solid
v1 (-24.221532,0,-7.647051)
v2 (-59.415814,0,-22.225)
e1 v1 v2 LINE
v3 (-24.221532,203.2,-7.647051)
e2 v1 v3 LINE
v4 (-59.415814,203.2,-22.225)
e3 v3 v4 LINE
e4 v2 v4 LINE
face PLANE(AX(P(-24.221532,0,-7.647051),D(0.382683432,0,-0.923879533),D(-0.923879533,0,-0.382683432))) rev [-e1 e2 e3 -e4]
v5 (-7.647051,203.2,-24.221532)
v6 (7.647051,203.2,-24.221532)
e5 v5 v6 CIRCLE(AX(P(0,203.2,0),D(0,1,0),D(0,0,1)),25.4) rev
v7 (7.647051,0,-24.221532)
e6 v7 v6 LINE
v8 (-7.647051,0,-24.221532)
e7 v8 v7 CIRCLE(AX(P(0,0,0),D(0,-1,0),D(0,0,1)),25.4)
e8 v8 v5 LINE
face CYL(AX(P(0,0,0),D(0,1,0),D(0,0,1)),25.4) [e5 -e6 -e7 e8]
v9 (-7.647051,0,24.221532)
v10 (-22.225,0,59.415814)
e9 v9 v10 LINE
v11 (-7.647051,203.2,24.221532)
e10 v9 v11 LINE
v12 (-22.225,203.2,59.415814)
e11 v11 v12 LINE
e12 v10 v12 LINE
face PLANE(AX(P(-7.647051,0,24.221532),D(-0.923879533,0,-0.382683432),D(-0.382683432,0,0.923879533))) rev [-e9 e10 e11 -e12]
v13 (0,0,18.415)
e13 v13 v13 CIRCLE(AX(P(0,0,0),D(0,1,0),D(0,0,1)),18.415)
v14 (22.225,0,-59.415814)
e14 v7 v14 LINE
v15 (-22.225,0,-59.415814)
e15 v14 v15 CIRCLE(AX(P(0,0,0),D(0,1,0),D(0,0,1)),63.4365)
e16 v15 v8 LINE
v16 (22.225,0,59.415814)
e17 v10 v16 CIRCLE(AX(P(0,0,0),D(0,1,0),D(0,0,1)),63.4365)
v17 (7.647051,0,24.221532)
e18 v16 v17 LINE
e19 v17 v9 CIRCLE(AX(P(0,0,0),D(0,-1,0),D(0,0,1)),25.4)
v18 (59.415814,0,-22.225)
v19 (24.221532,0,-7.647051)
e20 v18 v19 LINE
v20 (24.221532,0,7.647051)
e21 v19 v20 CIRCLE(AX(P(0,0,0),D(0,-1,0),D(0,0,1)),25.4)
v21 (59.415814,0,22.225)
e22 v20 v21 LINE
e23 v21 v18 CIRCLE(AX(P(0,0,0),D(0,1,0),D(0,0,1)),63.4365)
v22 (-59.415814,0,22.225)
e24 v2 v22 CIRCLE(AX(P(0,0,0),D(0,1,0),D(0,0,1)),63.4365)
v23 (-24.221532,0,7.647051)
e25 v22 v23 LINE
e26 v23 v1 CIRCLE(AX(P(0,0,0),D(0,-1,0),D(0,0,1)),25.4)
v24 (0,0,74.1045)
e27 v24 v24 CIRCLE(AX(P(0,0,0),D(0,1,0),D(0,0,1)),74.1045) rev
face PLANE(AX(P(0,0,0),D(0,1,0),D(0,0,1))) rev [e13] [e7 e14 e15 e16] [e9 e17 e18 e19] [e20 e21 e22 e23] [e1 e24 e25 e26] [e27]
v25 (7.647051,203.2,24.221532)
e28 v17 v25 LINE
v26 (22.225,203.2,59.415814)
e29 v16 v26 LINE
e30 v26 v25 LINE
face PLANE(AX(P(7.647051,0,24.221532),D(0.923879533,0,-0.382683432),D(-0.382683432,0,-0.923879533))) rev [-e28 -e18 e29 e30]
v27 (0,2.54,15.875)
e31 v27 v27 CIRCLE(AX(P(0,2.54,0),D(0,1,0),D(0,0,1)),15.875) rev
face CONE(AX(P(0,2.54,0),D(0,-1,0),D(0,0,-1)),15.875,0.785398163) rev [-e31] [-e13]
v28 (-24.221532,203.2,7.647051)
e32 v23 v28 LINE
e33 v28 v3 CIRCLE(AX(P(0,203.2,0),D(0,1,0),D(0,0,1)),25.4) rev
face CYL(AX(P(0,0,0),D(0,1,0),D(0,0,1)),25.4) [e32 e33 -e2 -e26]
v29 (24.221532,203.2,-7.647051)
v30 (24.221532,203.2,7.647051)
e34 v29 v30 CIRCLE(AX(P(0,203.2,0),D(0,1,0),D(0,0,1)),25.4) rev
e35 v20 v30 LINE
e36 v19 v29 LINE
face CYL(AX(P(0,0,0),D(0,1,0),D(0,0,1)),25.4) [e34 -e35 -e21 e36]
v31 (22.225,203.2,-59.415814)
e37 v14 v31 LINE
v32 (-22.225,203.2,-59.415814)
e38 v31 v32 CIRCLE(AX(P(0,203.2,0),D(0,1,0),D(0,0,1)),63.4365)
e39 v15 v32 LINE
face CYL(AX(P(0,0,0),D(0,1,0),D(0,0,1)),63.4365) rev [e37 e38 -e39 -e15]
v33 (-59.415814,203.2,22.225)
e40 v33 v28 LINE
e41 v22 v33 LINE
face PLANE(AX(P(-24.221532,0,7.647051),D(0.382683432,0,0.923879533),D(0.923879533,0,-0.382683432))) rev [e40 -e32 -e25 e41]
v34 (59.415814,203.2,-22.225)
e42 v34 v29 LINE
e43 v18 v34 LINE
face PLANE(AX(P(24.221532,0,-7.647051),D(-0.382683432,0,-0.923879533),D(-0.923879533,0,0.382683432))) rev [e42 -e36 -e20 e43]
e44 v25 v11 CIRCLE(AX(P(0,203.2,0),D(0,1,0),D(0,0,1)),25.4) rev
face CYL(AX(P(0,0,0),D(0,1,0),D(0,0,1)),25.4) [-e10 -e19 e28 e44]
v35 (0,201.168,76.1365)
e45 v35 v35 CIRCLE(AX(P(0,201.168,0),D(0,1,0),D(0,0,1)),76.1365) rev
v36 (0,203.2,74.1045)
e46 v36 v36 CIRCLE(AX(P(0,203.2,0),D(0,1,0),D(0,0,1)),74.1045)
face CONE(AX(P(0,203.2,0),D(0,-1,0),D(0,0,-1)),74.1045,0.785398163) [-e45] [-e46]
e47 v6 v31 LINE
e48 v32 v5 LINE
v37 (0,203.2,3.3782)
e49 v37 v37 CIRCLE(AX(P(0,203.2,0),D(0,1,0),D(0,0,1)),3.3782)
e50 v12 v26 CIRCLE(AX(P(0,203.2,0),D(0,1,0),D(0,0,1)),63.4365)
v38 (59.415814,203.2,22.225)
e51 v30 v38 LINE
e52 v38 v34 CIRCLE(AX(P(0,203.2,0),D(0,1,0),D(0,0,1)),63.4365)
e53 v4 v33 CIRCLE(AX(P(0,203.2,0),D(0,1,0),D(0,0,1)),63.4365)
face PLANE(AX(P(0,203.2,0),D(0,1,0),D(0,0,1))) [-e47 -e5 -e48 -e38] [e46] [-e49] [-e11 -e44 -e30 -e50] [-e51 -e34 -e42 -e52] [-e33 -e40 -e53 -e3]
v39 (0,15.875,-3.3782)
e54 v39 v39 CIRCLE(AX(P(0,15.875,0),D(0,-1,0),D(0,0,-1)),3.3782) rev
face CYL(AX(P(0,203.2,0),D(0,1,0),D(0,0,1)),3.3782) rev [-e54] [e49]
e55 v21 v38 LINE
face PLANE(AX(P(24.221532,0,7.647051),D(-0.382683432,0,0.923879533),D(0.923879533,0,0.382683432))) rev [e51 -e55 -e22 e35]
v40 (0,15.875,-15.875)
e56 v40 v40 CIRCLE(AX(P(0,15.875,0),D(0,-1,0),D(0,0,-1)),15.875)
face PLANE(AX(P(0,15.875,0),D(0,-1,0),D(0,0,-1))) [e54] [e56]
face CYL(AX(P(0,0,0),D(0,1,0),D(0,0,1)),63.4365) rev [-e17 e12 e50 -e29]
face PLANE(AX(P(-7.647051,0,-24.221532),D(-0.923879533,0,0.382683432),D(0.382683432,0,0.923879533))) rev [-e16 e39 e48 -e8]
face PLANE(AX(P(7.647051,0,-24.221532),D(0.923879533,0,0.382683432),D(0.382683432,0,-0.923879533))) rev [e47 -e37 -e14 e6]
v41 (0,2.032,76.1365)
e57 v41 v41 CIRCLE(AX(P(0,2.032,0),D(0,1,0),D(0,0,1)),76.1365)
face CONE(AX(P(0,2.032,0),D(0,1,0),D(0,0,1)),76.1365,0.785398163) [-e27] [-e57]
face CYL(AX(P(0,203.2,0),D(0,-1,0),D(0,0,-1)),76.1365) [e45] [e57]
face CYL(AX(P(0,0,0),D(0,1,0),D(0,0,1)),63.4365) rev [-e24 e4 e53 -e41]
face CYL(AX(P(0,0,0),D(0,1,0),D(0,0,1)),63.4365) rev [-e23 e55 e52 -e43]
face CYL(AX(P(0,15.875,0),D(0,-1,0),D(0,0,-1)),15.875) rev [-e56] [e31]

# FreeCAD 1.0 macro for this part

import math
import FreeCAD as App
import Part
import Sketcher

V = App.Vector
Q = App.Units.Quantity


def edges_at(feature, points):
    """Names of the edges that pass closest to the given points."""
    edges = feature.Shape.Edges
    near = lambda p: min(range(len(edges)), key=lambda i: edges[i].distToShape(Part.Vertex(*p))[0])
    return sorted({f"Edge{near(p) + 1}" for p in points})

doc = App.newDocument("Part")
params = doc.addObject("Spreadsheet::Sheet", "Params")
for row, (alias, value) in enumerate([
    ("sketch1_diameter", "5.995 in"),
    ("pad1_length", "8 in"),
    ("chamfer_size", "0.08 in"),
    ("sketch2_radius", "1 in"),
    ("sketch3_diameter", "0.266 in"),
    ("hole_diameter", "0.266 in"),
    ("sketch4_diameter", "1.25 in"),
    ("pocket2_length", "0.625 in"),
    ("chamfer2_size", "0.1 in"),
], start=1):
    params.set(f"A{row}", alias)
    params.set(f"B{row}", "=" + value)
    params.setAlias(f"B{row}", alias)

body = doc.addObject("PartDesign::Body", "Body")

# Sketch on XZ plane
sketch1 = body.newObject("Sketcher::SketchObject", "Sketch")
sketch1.AttachmentSupport = (doc.getObject("XZ_Plane"), [""])
sketch1.MapMode = "FlatFace"
sketch1.addGeometry(Part.Circle(V(0, 0, 0), V(0, 0, 1), 76), False)
sketch1.addConstraint([
    Sketcher.Constraint("Coincident", 0, 3, -1, 1),
    Sketcher.Constraint("Diameter", 0, Q("5.995 in")),
])
sketch1.setExpression("Constraints[1]", "Params.sketch1_diameter")
pad1 = body.newObject("PartDesign::Pad", "Pad")
pad1.Profile = sketch1
pad1.setExpression("Length", "Params.pad1_length")
pad1.Reversed = True
doc.recompute()

chamfer = body.newObject("PartDesign::Chamfer", "Chamfer")
chamfer.Base = (pad1, edges_at(pad1, [(0, 0, -76.136), (0, 203.2, -76.136)]))
chamfer.setExpression("Size", "Params.chamfer_size")

# Sketch on XZ plane
sketch2 = body.newObject("Sketcher::SketchObject", "Sketch001")
sketch2.AttachmentSupport = (doc.getObject("XZ_Plane"), [""])
sketch2.MapMode = "FlatFace"
sketch2.AttachmentOffset = App.Placement(V(0, 0, -8 * 25.4), App.Rotation())
sketch2.addGeometry([
    Part.LineSegment(V(-22, -59, 0), V(-8, -24, 0)),  # 0
    Part.ArcOfCircle(Part.Circle(V(0, 0, 0), V(0, 0, 1), 25), math.radians(-108), math.radians(-72)),  # 1
    Part.LineSegment(V(8, -24, 0), V(22, -59, 0)),  # 2
    Part.ArcOfCircle(Part.Circle(V(0, 0, 0), V(0, 0, 1), 63), math.radians(-111), math.radians(-69)),  # 3
    Part.LineSegment(V(59, -22, 0), V(24, -8, 0)),  # 4
    Part.ArcOfCircle(Part.Circle(V(0, 0, 0), V(0, 0, 1), 25), math.radians(-18), math.radians(18)),  # 5
    Part.LineSegment(V(24, 8, 0), V(59, 22, 0)),  # 6
    Part.ArcOfCircle(Part.Circle(V(0, 0, 0), V(0, 0, 1), 63), math.radians(-21), math.radians(21)),  # 7
    Part.LineSegment(V(22, 59, 0), V(8, 24, 0)),  # 8
    Part.ArcOfCircle(Part.Circle(V(0, 0, 0), V(0, 0, 1), 25), math.radians(72), math.radians(108)),  # 9
    Part.LineSegment(V(-8, 24, 0), V(-22, 59, 0)),  # 10
    Part.ArcOfCircle(Part.Circle(V(0, 0, 0), V(0, 0, 1), 63), math.radians(69), math.radians(111)),  # 11
    Part.LineSegment(V(-59, 22, 0), V(-24, 8, 0)),  # 12
    Part.ArcOfCircle(Part.Circle(V(0, 0, 0), V(0, 0, 1), 25), math.radians(162), math.radians(198)),  # 13
    Part.LineSegment(V(-24, -8, 0), V(-59, -22, 0)),  # 14
    Part.ArcOfCircle(Part.Circle(V(0, 0, 0), V(0, 0, 1), 63), math.radians(159), math.radians(201)),  # 15
], False)
sketch2.addConstraint([
    Sketcher.Constraint("Coincident", 0, 2, 1, 1),
    Sketcher.Constraint("Coincident", 1, 2, 2, 1),
    Sketcher.Constraint("Coincident", 2, 2, 3, 2),
    Sketcher.Constraint("Coincident", 3, 1, 0, 1),
    Sketcher.Constraint("Coincident", 4, 2, 5, 1),
    Sketcher.Constraint("Coincident", 5, 2, 6, 1),
    Sketcher.Constraint("Coincident", 6, 2, 7, 2),
    Sketcher.Constraint("Coincident", 7, 1, 4, 1),
    Sketcher.Constraint("Coincident", 8, 2, 9, 1),
    Sketcher.Constraint("Coincident", 9, 2, 10, 1),
    Sketcher.Constraint("Coincident", 10, 2, 11, 2),
    Sketcher.Constraint("Coincident", 11, 1, 8, 1),
    Sketcher.Constraint("Coincident", 12, 2, 13, 1),
    Sketcher.Constraint("Coincident", 13, 2, 14, 1),
    Sketcher.Constraint("Coincident", 14, 2, 15, 2),
    Sketcher.Constraint("Coincident", 15, 1, 12, 1),
    Sketcher.Constraint("Coincident", 1, 3, -1, 1),
    Sketcher.Constraint("Coincident", 3, 3, -1, 1),
    Sketcher.Constraint("Coincident", 5, 3, -1, 1),
    Sketcher.Constraint("Coincident", 7, 3, -1, 1),
    Sketcher.Constraint("Coincident", 9, 3, -1, 1),
    Sketcher.Constraint("Coincident", 11, 3, -1, 1),
    Sketcher.Constraint("Coincident", 13, 3, -1, 1),
    Sketcher.Constraint("Coincident", 15, 3, -1, 1),
    Sketcher.Constraint("Equal", 1, 5),
    Sketcher.Constraint("Equal", 3, 7),
    Sketcher.Constraint("Equal", 5, 9),
    Sketcher.Constraint("Equal", 7, 11),
    Sketcher.Constraint("Equal", 9, 13),
    Sketcher.Constraint("Equal", 11, 15),
    Sketcher.Constraint("Perpendicular", 0, 4),
    Sketcher.Constraint("Perpendicular", 2, 6),
    Sketcher.Constraint("Perpendicular", 4, 8),
    Sketcher.Constraint("Perpendicular", 6, 10),
    Sketcher.Constraint("Perpendicular", 8, 12),
    Sketcher.Constraint("Perpendicular", 10, 14),
    Sketcher.Constraint("Horizontal", 0, 2, 1, 2),
    Sketcher.Constraint("Horizontal", 2, 2, 3, 1),
    Sketcher.Constraint("Horizontal", 8, 2, 9, 2),
    Sketcher.Constraint("Horizontal", 5, 2, 12, 2),
    Sketcher.Constraint("Horizontal", 4, 2, 13, 2),
    Sketcher.Constraint("Vertical", 4, 2, 5, 2),
    Sketcher.Constraint("Vertical", 1, 2, 8, 2),
    Sketcher.Constraint("Equal", 2, 4),
    Sketcher.Constraint("Radius", 1, Q("1 in")),
    Sketcher.Constraint("Angle", 0, Q("67.5 deg")),
    Sketcher.Constraint("Radius", 3, Q("2.4975 in")),
    Sketcher.Constraint("DistanceX", 3, 1, 2, 2, Q("1.75 in")),
])
sketch2.setExpression("Constraints[44]", "Params.sketch2_radius")
pocket1 = body.newObject("PartDesign::Pocket", "Pocket")
pocket1.Profile = sketch2
pocket1.Type = "ThroughAll"
pocket1.Midplane = True

# Sketch on XZ plane
sketch3 = body.newObject("Sketcher::SketchObject", "Sketch002")
sketch3.AttachmentSupport = (doc.getObject("XZ_Plane"), [""])
sketch3.MapMode = "FlatFace"
sketch3.AttachmentOffset = App.Placement(V(0, 0, -8 * 25.4), App.Rotation())
sketch3.addGeometry(Part.Circle(V(0, 0, 0), V(0, 0, 1), 3.4), False)
sketch3.addConstraint([
    Sketcher.Constraint("Coincident", 0, 3, -1, 1),
    Sketcher.Constraint("Diameter", 0, Q("0.266 in")),
])
sketch3.setExpression("Constraints[1]", "Params.sketch3_diameter")
doc.recompute()
hole = body.newObject("PartDesign::Hole", "Hole")
hole.Profile = sketch3
hole.ThreadType = "None"
hole.setExpression("Diameter", "Params.hole_diameter")
hole.DepthType = "ThroughAll"
hole.Reversed = True

# Sketch on XZ plane
sketch4 = body.newObject("Sketcher::SketchObject", "Sketch003")
sketch4.AttachmentSupport = (doc.getObject("XZ_Plane"), [""])
sketch4.MapMode = "FlatFace"
sketch4.addGeometry(Part.Circle(V(0, 0, 0), V(0, 0, 1), 16), False)
sketch4.addConstraint([
    Sketcher.Constraint("Coincident", 0, 3, -1, 1),
    Sketcher.Constraint("Diameter", 0, Q("1.25 in")),
])
sketch4.setExpression("Constraints[1]", "Params.sketch4_diameter")
pocket2 = body.newObject("PartDesign::Pocket", "Pocket001")
pocket2.Profile = sketch4
pocket2.setExpression("Length", "Params.pocket2_length")
doc.recompute()

chamfer2 = body.newObject("PartDesign::Chamfer", "Chamfer001")
chamfer2.Base = (pocket2, edges_at(pocket2, [(0, 0, 15.875)]))
chamfer2.setExpression("Size", "Params.chamfer2_size")

doc.recompute()
